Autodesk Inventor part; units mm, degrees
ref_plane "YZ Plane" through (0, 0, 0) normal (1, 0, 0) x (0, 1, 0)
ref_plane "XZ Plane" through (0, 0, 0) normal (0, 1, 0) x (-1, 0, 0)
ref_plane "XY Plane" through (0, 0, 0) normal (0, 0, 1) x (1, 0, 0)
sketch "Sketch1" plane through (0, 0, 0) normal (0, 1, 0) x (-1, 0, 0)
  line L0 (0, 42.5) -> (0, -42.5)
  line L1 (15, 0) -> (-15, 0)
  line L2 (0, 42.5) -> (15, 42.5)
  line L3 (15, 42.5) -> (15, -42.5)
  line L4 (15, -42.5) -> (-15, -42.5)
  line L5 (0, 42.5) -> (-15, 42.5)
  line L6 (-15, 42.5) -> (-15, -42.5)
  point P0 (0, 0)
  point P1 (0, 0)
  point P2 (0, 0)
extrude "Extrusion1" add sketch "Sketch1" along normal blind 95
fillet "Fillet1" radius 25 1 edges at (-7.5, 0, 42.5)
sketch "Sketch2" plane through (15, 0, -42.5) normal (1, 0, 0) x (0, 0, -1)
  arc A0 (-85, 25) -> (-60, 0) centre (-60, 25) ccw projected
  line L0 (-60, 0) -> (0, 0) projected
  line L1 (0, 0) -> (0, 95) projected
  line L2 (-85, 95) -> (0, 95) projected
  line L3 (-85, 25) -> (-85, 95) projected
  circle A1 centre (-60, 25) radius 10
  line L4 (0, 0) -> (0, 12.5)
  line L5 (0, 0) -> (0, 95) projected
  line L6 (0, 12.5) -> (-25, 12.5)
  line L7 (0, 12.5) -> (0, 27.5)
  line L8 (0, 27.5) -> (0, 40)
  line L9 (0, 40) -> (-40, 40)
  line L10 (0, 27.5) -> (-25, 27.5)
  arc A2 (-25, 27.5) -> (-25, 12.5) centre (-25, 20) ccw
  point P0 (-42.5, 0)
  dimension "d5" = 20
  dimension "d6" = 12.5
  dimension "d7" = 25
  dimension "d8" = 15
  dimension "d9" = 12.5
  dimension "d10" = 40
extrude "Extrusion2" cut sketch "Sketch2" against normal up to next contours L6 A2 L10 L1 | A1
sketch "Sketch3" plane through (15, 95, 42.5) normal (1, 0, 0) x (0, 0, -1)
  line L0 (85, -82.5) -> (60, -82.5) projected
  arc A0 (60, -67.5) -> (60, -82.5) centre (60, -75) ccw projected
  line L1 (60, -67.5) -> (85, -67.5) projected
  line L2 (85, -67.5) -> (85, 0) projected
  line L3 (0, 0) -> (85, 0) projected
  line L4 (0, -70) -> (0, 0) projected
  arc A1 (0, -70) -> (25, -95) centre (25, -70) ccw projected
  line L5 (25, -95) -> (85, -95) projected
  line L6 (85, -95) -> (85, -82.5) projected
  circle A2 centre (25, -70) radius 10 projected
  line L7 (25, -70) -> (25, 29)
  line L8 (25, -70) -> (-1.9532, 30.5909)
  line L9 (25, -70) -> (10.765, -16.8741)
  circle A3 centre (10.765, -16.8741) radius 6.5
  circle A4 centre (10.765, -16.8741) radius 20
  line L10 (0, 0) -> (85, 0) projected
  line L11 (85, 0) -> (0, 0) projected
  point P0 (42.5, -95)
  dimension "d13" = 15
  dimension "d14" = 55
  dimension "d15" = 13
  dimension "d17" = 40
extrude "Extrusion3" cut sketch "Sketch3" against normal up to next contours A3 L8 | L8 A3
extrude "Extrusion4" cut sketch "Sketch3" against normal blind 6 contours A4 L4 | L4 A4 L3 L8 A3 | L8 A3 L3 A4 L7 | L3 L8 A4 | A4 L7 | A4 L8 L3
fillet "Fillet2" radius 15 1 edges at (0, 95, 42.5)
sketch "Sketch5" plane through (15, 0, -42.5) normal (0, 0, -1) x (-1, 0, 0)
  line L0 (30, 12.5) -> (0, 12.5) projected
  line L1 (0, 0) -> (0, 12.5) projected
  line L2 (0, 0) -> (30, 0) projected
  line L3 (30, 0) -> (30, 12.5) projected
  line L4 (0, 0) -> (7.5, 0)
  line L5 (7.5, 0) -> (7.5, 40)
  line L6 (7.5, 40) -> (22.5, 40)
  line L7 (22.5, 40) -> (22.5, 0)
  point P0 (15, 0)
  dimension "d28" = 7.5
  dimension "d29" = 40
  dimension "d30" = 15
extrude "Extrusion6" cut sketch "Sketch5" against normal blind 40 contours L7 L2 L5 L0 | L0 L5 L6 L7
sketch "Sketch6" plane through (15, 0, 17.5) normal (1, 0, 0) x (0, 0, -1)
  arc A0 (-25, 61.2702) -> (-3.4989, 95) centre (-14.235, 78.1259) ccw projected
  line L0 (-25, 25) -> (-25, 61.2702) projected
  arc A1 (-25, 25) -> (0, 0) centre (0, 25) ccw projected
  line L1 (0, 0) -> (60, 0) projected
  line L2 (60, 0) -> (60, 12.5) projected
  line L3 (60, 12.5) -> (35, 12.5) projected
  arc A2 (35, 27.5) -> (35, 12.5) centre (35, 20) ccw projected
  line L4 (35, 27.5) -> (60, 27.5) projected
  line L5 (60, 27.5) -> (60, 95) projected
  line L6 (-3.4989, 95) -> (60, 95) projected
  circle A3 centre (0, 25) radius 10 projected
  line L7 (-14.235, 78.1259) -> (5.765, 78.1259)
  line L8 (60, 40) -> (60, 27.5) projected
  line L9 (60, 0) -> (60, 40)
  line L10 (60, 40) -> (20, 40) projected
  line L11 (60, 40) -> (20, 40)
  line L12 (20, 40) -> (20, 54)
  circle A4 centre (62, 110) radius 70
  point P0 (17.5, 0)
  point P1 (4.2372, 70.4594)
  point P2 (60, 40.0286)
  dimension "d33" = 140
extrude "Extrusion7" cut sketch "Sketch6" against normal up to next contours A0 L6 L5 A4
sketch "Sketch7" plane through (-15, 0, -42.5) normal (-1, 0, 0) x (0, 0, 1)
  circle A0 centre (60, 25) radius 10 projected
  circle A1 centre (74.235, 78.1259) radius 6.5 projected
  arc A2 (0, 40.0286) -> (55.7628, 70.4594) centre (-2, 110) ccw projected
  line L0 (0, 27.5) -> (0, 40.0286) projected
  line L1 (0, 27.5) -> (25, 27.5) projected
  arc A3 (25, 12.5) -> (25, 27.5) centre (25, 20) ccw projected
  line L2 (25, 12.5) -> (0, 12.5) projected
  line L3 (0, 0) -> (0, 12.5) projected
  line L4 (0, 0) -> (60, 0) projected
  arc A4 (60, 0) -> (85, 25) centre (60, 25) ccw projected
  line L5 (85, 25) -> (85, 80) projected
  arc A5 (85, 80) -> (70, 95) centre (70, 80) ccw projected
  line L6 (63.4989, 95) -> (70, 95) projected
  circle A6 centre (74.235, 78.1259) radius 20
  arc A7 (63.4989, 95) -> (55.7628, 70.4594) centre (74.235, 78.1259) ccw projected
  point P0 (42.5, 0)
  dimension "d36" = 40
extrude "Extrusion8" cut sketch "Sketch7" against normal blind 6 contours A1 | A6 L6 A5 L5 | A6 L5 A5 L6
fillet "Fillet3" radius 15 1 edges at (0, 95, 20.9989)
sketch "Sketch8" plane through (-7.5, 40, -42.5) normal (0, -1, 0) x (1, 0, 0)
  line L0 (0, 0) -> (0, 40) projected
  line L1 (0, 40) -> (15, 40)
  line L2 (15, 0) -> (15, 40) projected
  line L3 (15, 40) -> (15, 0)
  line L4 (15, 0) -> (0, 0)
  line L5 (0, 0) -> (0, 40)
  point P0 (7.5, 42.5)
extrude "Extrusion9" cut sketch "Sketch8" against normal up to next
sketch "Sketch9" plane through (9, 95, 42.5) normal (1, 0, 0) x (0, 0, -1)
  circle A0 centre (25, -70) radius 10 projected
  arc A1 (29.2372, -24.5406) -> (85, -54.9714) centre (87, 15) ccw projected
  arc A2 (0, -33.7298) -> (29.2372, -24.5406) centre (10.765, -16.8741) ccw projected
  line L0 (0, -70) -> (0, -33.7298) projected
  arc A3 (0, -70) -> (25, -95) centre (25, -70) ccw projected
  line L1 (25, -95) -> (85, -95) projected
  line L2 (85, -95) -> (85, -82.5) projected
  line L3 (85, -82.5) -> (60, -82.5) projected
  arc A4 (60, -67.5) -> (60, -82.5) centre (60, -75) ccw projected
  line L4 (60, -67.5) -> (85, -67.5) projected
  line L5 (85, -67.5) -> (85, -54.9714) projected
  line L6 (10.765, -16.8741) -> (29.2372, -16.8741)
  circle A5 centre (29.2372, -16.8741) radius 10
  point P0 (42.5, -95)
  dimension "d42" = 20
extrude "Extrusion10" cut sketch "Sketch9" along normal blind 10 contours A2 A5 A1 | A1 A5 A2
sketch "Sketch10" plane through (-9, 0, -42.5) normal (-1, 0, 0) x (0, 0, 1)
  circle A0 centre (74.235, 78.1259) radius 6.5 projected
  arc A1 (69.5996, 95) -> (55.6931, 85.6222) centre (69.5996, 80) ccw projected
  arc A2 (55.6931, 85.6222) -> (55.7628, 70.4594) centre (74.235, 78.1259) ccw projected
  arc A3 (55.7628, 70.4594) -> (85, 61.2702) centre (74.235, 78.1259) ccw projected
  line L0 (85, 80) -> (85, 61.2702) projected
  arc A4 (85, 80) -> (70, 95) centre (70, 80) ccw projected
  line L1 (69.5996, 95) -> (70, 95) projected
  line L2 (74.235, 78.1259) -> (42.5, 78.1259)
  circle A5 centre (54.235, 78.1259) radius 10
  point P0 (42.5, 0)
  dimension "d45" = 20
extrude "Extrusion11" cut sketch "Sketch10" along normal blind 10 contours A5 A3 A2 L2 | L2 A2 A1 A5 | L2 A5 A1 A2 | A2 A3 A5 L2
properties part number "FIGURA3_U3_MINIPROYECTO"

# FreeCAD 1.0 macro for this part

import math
import FreeCAD as App
import Part
import Sketcher
from FreeCAD import Vector


def edges_at(feature, points):
    """Names of the edges that pass closest to the given points."""
    edges = feature.Shape.Edges
    near = lambda p: min(range(len(edges)), key=lambda i: edges[i].distToShape(Part.Vertex(*p))[0])
    return sorted({f"Edge{near(p) + 1}" for p in points})

doc = App.newDocument("Part")
body = doc.addObject("PartDesign::Body", "Body")

sketch1 = body.newObject("Sketcher::SketchObject", "Sketch")
sketch1.AttachmentSupport = (doc.getObject("XZ_Plane"), [""])
sketch1.MapMode = "FlatFace"
sketch1.addGeometry([
    Part.LineSegment(Vector(-15, 42, 0), Vector(15, 42, 0)),
    Part.LineSegment(Vector(15, 42, 0), Vector(15, -42, 0)),
    Part.LineSegment(Vector(15, -42, 0), Vector(-15, -42, 0)),
    Part.LineSegment(Vector(-15, -42, 0), Vector(-15, 42, 0)),
], False)
sketch1.addConstraint([
    Sketcher.Constraint("Coincident", 0, 2, 1, 1),
    Sketcher.Constraint("Coincident", 1, 2, 2, 1),
    Sketcher.Constraint("Coincident", 2, 2, 3, 1),
    Sketcher.Constraint("Coincident", 3, 2, 0, 1),
    Sketcher.Constraint("Horizontal", 0),
    Sketcher.Constraint("Vertical", 1),
    Sketcher.Constraint("Horizontal", 2),
    Sketcher.Constraint("Vertical", 3),
    Sketcher.Constraint("Symmetric", 0, 2, 2, 2, -1, 1),
    Sketcher.Constraint("DistanceX", 0, 1, 0, 2, 30.0),
    Sketcher.Constraint("DistanceY", 1, 2, 1, 1, 85.0),
])
pad1 = body.newObject("PartDesign::Pad", "Pad")
pad1.Profile = sketch1
pad1.Length = 95
pad1.Reversed = True
doc.recompute()

fillet = body.newObject("PartDesign::Fillet", "Fillet")
fillet.Base = (pad1, edges_at(pad1, [(-7.5, 0, 42.5)]))
fillet.Radius = 25

sketch2 = body.newObject("Sketcher::SketchObject", "Sketch001")
sketch2.AttachmentSupport = (doc.getObject("YZ_Plane"), [""])
sketch2.MapMode = "FlatFace"
sketch2.AttachmentOffset = App.Placement(Vector(0, 0, 15), App.Rotation())
sketch2.addGeometry([
    Part.LineSegment(Vector(12, -18, 0), Vector(12, -42, 0)),
    Part.LineSegment(Vector(12, -42, 0), Vector(28, -42, 0)),
    Part.LineSegment(Vector(28, -42, 0), Vector(28, -18, 0)),
    Part.ArcOfCircle(Part.Circle(Vector(20, -18, 0), Vector(0, 0, 1), 8), math.radians(0), math.radians(180)),
    Part.Circle(Vector(25, 18, 0), Vector(0, 0, 1), 10),
], False)
sketch2.addConstraint([
    Sketcher.Constraint("Coincident", 0, 2, 1, 1),
    Sketcher.Constraint("Coincident", 1, 2, 2, 1),
    Sketcher.Constraint("Tangent", 2, 2, 3, 1),
    Sketcher.Constraint("Tangent", 3, 2, 0, 1),
    Sketcher.Constraint("Vertical", 0),
    Sketcher.Constraint("Horizontal", 1),
    Sketcher.Constraint("Vertical", 2),
    Sketcher.Constraint("Diameter", 4, 20.0),
    Sketcher.Constraint("Radius", 3, 7.5),
    Sketcher.Constraint("DistanceY", 0, 2, 0, 1, 25.0),
    Sketcher.Constraint("DistanceX", -1, 1, 3, 3, 20.0),
    Sketcher.Constraint("DistanceX", -1, 1, 4, 3, 25.0),
    Sketcher.Constraint("DistanceY", 3, 3, 4, 3, 35.0),
    Sketcher.Constraint("DistanceY", 3, 3, -1, 1, 17.5),
])
pocket1 = body.newObject("PartDesign::Pocket", "Pocket")
pocket1.Profile = sketch2
pocket1.Type = "UpToFirst"

sketch3 = body.newObject("Sketcher::SketchObject", "Sketch002")
sketch3.AttachmentSupport = (doc.getObject("YZ_Plane"), [""])
sketch3.MapMode = "FlatFace"
sketch3.AttachmentOffset = App.Placement(Vector(0, 0, 15), App.Rotation())
sketch3.addGeometry(Part.Circle(Vector(78, 32, 0), Vector(0, 0, 1), 6), False)
sketch3.addConstraint([
    Sketcher.Constraint("Diameter", 0, 13.0),
    Sketcher.Constraint("DistanceX", -1, 1, 0, 3, 78.126),
    Sketcher.Constraint("DistanceY", -1, 1, 0, 3, 31.735),
])
pocket2 = body.newObject("PartDesign::Pocket", "Pocket001")
pocket2.Profile = sketch3
pocket2.Type = "UpToFirst"

sketch4 = body.newObject("Sketcher::SketchObject", "Sketch003")
sketch4.AttachmentSupport = (doc.getObject("YZ_Plane"), [""])
sketch4.MapMode = "FlatFace"
sketch4.AttachmentOffset = App.Placement(Vector(0, 0, 15), App.Rotation())
sketch4.addGeometry([
    Part.Circle(Vector(78, 32, 0), Vector(0, 0, 1), 20),
    Part.Circle(Vector(78, 32, 0), Vector(0, 0, 1), 6),
], False)
sketch4.addConstraint([
    Sketcher.Constraint("Coincident", 1, 3, 0, 3),
    Sketcher.Constraint("Diameter", 0, 40.0),
    Sketcher.Constraint("Diameter", 1, 13.0),
    Sketcher.Constraint("DistanceX", -1, 1, 0, 3, 78.126),
    Sketcher.Constraint("DistanceY", -1, 1, 0, 3, 31.735),
])
pocket3 = body.newObject("PartDesign::Pocket", "Pocket002")
pocket3.Profile = sketch4
pocket3.Length = 6
doc.recompute()

fillet2 = body.newObject("PartDesign::Fillet", "Fillet001")
fillet2.Base = (pocket3, edges_at(pocket3, [(0, 95, 42.5)]))
fillet2.Radius = 15

sketch5 = body.newObject("Sketcher::SketchObject", "Sketch004")
sketch5.AttachmentSupport = (doc.getObject("XY_Plane"), [""])
sketch5.MapMode = "FlatFace"
sketch5.AttachmentOffset = App.Placement(Vector(0, 0, -42.5), App.Rotation())
sketch5.addGeometry([
    Part.LineSegment(Vector(-8, 0, 0), Vector(-8, 40, 0)),
    Part.LineSegment(Vector(-8, 40, 0), Vector(8, 40, 0)),
    Part.LineSegment(Vector(8, 40, 0), Vector(8, 0, 0)),
    Part.LineSegment(Vector(8, 0, 0), Vector(-8, 0, 0)),
], False)
sketch5.addConstraint([
    Sketcher.Constraint("Coincident", 0, 2, 1, 1),
    Sketcher.Constraint("Coincident", 1, 2, 2, 1),
    Sketcher.Constraint("Coincident", 2, 2, 3, 1),
    Sketcher.Constraint("Coincident", 3, 2, 0, 1),
    Sketcher.Constraint("Vertical", 0),
    Sketcher.Constraint("Horizontal", 1),
    Sketcher.Constraint("Vertical", 2),
    Sketcher.Constraint("Horizontal", 3),
    Sketcher.Constraint("Symmetric", 2, 2, 3, 2, -1, 1),
    Sketcher.Constraint("DistanceX", 1, 1, 1, 2, 15.0),
    Sketcher.Constraint("DistanceY", 0, 1, 0, 2, 40.0),
])
pocket4 = body.newObject("PartDesign::Pocket", "Pocket003")
pocket4.Profile = sketch5
pocket4.Length = 40
pocket4.Reversed = True

sketch6 = body.newObject("Sketcher::SketchObject", "Sketch005")
sketch6.AttachmentSupport = (doc.getObject("YZ_Plane"), [""])
sketch6.MapMode = "FlatFace"
sketch6.AttachmentOffset = App.Placement(Vector(0, 0, 15), App.Rotation())
sketch6.addGeometry([
    Part.ArcOfCircle(Part.Circle(Vector(78, 32, 0), Vector(0, 0, 1), 20), math.radians(-113), math.radians(-32)),
    Part.ArcOfCircle(Part.Circle(Vector(110, -44, 0), Vector(0, 0, 1), 70), math.radians(124), math.radians(178)),
    Part.LineSegment(Vector(40, -42, 0), Vector(95, -42, 0)),
    Part.LineSegment(Vector(95, -42, 0), Vector(95, 21, 0)),
], False)
sketch6.addConstraint([
    Sketcher.Constraint("Coincident", 0, 1, 1, 1),
    Sketcher.Constraint("Coincident", 1, 2, 2, 1),
    Sketcher.Constraint("Coincident", 2, 2, 3, 1),
    Sketcher.Constraint("Coincident", 3, 2, 0, 2),
    Sketcher.Constraint("Horizontal", 2),
    Sketcher.Constraint("Vertical", 3),
    Sketcher.Constraint("Radius", 1, 70.0),
    Sketcher.Constraint("Radius", 0, 20.0),
    Sketcher.Constraint("DistanceX", -1, 1, 1, 3, 110.0),
    Sketcher.Constraint("DistanceX", -1, 1, 2, 2, 95.0),
    Sketcher.Constraint("DistanceY", 1, 3, 1, 2, 2.0),
    Sketcher.Constraint("DistanceY", 1, 3, -1, 1, 44.5),
    Sketcher.Constraint("DistanceY", 3, 1, 3, 2, 63.499),
    Sketcher.Constraint("DistanceX", -1, 1, 0, 3, 78.126),
])
pocket5 = body.newObject("PartDesign::Pocket", "Pocket004")
pocket5.Profile = sketch6
pocket5.Type = "UpToFirst"

sketch7 = body.newObject("Sketcher::SketchObject", "Sketch006")
sketch7.AttachmentSupport = (doc.getObject("YZ_Plane"), [""])
sketch7.MapMode = "FlatFace"
sketch7.AttachmentOffset = App.Placement(Vector(0, 0, -15), App.Rotation())
sketch7.addGeometry(Part.Circle(Vector(78, 32, 0), Vector(0, 0, 1), 20), False)
sketch7.addConstraint([
    Sketcher.Constraint("Diameter", 0, 40.0),
    Sketcher.Constraint("DistanceX", -1, 1, 0, 3, 78.126),
    Sketcher.Constraint("DistanceY", -1, 1, 0, 3, 31.735),
])
pocket6 = body.newObject("PartDesign::Pocket", "Pocket005")
pocket6.Profile = sketch7
pocket6.Length = 6
pocket6.Reversed = True
doc.recompute()

fillet3 = body.newObject("PartDesign::Fillet", "Fillet002")
fillet3.Base = (pocket6, edges_at(pocket6, [(0, 95, 20.999)]))
fillet3.Radius = 15

sketch8 = body.newObject("Sketcher::SketchObject", "Sketch007")
sketch8.AttachmentSupport = (doc.getObject("XZ_Plane"), [""])
sketch8.MapMode = "FlatFace"
sketch8.AttachmentOffset = App.Placement(Vector(0, 0, -40), App.Rotation())
sketch8.addGeometry([
    Part.LineSegment(Vector(-8, -2, 0), Vector(-8, -42, 0)),
    Part.LineSegment(Vector(-8, -42, 0), Vector(8, -42, 0)),
    Part.LineSegment(Vector(8, -42, 0), Vector(8, -2, 0)),
    Part.LineSegment(Vector(8, -2, 0), Vector(-8, -2, 0)),
], False)
sketch8.addConstraint([
    Sketcher.Constraint("Coincident", 0, 2, 1, 1),
    Sketcher.Constraint("Coincident", 1, 2, 2, 1),
    Sketcher.Constraint("Coincident", 2, 2, 3, 1),
    Sketcher.Constraint("Coincident", 3, 2, 0, 1),
    Sketcher.Constraint("Vertical", 0),
    Sketcher.Constraint("Horizontal", 1),
    Sketcher.Constraint("Vertical", 2),
    Sketcher.Constraint("Horizontal", 3),
    Sketcher.Constraint("DistanceX", 1, 1, 1, 2, 15.0),
    Sketcher.Constraint("DistanceY", 0, 2, 0, 1, 40.0),
    Sketcher.Constraint("DistanceX", 0, 2, -1, 1, 7.5),
    Sketcher.Constraint("DistanceY", 0, 2, -1, 1, 42.5),
])
pocket7 = body.newObject("PartDesign::Pocket", "Pocket006")
pocket7.Profile = sketch8
pocket7.Type = "UpToFirst"

sketch9 = body.newObject("Sketcher::SketchObject", "Sketch008")
sketch9.AttachmentSupport = (doc.getObject("YZ_Plane"), [""])
sketch9.MapMode = "FlatFace"
sketch9.AttachmentOffset = App.Placement(Vector(0, 0, 9), App.Rotation())
sketch9.addGeometry(Part.Circle(Vector(78, 13, 0), Vector(0, 0, 1), 10), False)
sketch9.addConstraint([
    Sketcher.Constraint("Diameter", 0, 20.0),
    Sketcher.Constraint("DistanceX", -1, 1, 0, 3, 78.126),
    Sketcher.Constraint("DistanceY", -1, 1, 0, 3, 13.2628),
])
pocket8 = body.newObject("PartDesign::Pocket", "Pocket007")
pocket8.Profile = sketch9
pocket8.Length = 10
pocket8.Reversed = True

sketch10 = body.newObject("Sketcher::SketchObject", "Sketch009")
sketch10.AttachmentSupport = (doc.getObject("YZ_Plane"), [""])
sketch10.MapMode = "FlatFace"
sketch10.AttachmentOffset = App.Placement(Vector(0, 0, -9), App.Rotation())
sketch10.addGeometry(Part.Circle(Vector(78, 12, 0), Vector(0, 0, 1), 10), False)
sketch10.addConstraint([
    Sketcher.Constraint("Diameter", 0, 20.0),
    Sketcher.Constraint("DistanceX", -1, 1, 0, 3, 78.126),
    Sketcher.Constraint("DistanceY", -1, 1, 0, 3, 11.735),
])
pocket9 = body.newObject("PartDesign::Pocket", "Pocket008")
pocket9.Profile = sketch10
pocket9.Length = 10

doc.recompute()
